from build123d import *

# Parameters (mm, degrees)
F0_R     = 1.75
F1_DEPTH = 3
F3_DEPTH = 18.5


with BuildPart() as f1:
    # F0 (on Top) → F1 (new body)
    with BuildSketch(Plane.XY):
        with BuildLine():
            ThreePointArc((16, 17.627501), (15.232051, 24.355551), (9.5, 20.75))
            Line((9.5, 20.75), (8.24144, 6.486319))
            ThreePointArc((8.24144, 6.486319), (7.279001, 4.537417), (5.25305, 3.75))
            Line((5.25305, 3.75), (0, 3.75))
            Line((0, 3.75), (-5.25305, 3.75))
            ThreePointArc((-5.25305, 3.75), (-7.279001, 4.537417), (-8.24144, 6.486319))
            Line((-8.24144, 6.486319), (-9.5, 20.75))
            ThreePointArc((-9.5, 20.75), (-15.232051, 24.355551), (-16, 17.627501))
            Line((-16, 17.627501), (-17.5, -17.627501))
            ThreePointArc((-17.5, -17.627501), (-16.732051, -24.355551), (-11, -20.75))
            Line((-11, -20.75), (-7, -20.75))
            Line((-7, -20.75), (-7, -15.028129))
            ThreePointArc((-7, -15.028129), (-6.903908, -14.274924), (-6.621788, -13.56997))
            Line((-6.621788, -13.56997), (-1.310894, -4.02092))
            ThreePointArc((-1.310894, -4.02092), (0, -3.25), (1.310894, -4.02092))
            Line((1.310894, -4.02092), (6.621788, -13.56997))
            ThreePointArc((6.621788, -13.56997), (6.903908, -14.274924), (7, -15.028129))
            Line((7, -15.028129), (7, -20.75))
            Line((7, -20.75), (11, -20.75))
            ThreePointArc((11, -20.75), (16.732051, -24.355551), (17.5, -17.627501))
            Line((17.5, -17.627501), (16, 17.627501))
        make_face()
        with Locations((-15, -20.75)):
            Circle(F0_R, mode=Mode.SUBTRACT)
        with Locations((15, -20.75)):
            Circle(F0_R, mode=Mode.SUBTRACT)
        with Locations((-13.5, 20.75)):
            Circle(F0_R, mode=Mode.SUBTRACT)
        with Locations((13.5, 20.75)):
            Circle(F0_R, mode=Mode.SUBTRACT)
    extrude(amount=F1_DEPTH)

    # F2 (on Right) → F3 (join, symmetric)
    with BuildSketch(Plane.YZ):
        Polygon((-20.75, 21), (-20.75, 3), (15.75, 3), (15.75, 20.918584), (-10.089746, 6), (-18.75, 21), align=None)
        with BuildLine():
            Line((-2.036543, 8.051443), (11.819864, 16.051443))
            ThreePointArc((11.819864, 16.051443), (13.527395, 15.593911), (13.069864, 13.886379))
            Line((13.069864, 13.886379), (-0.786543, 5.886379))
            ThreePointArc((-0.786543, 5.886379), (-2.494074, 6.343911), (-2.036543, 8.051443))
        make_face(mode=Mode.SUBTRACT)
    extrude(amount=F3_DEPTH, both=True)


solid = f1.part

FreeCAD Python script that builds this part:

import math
import FreeCAD as App
import Part
import Sketcher
Q = App.Units.Quantity

doc = App.newDocument("Part")
body = doc.addObject("PartDesign::Body", "Body")

# Sketch on XY plane
sketch1 = doc.addObject("Sketcher::SketchObject", "Sketch")
body.addObject(sketch1)
sketch1.AttachmentSupport = (doc.XY_Plane, [""])
sketch1.MapMode = "FlatFace"
sketch1.addGeometry(Part.ArcOfCircle(Part.Circle(App.Vector(13.5, 20.7, 0), App.Vector(0, 0, 1), 4), math.radians(-51), math.radians(180)), False)
sketch1.addGeometry(Part.LineSegment(App.Vector(9.5, 20.8, 0), App.Vector(8.2, 6.5, 0)), False)
sketch1.addGeometry(Part.ArcOfCircle(Part.Circle(App.Vector(5.3, 6.8, 0), App.Vector(0, 0, 1), 3), math.radians(-90), math.radians(-5)), False)
sketch1.addGeometry(Part.LineSegment(App.Vector(5.3, 3.8, 0), App.Vector(-5.3, 3.8, 0)), False)
sketch1.addGeometry(Part.ArcOfCircle(Part.Circle(App.Vector(-5.3, 6.8, 0), App.Vector(0, 0, 1), 3), math.radians(-175), math.radians(-90)), False)
sketch1.addGeometry(Part.LineSegment(App.Vector(-8.2, 6.5, 0), App.Vector(-9.5, 20.8, 0)), False)
sketch1.addGeometry(Part.ArcOfCircle(Part.Circle(App.Vector(-13.5, 20.7, 0), App.Vector(0, 0, 1), 4), math.radians(0), math.radians(231)), False)
sketch1.addGeometry(Part.LineSegment(App.Vector(-16, 17.6, 0), App.Vector(-17.5, -17.6, 0)), False)
sketch1.addGeometry(Part.ArcOfCircle(Part.Circle(App.Vector(-15, -20.7, 0), App.Vector(0, 0, 1), 4), math.radians(129), math.radians(360)), False)
sketch1.addGeometry(Part.LineSegment(App.Vector(-11, -20.8, 0), App.Vector(-7, -20.8, 0)), False)
sketch1.addGeometry(Part.LineSegment(App.Vector(-7, -20.8, 0), App.Vector(-7, -15, 0)), False)
sketch1.addGeometry(Part.ArcOfCircle(Part.Circle(App.Vector(-4, -15, 0), App.Vector(0, 0, 1), 3), math.radians(151), math.radians(180)), False)
sketch1.addGeometry(Part.LineSegment(App.Vector(-6.6, -13.6, 0), App.Vector(-1.3, -4, 0)), False)
sketch1.addGeometry(Part.ArcOfCircle(Part.Circle(App.Vector(0, -4.8, 0), App.Vector(0, 0, 1), 1.5), math.radians(29), math.radians(151)), False)
sketch1.addGeometry(Part.LineSegment(App.Vector(1.3, -4, 0), App.Vector(6.6, -13.6, 0)), False)
sketch1.addGeometry(Part.ArcOfCircle(Part.Circle(App.Vector(4, -15, 0), App.Vector(0, 0, 1), 3), math.radians(0), math.radians(29)), False)
sketch1.addGeometry(Part.LineSegment(App.Vector(7, -15, 0), App.Vector(7, -20.8, 0)), False)
sketch1.addGeometry(Part.LineSegment(App.Vector(7, -20.8, 0), App.Vector(11, -20.8, 0)), False)
sketch1.addGeometry(Part.ArcOfCircle(Part.Circle(App.Vector(15, -20.7, 0), App.Vector(0, 0, 1), 4), math.radians(-180), math.radians(51)), False)
sketch1.addGeometry(Part.LineSegment(App.Vector(17.5, -17.6, 0), App.Vector(16, 17.6, 0)), False)
sketch1.addGeometry(Part.Circle(App.Vector(-15, -20.8, 0), App.Vector(0, 0, 1), 1.8), False)
sketch1.addGeometry(Part.Circle(App.Vector(15, -20.8, 0), App.Vector(0, 0, 1), 1.8), False)
sketch1.addGeometry(Part.Circle(App.Vector(-13.5, 20.8, 0), App.Vector(0, 0, 1), 1.8), False)
sketch1.addGeometry(Part.Circle(App.Vector(13.5, 20.8, 0), App.Vector(0, 0, 1), 1.8), False)
sketch1.addConstraint(Sketcher.Constraint("Coincident", 0, 2, 1, 1))
sketch1.addConstraint(Sketcher.Constraint("Tangent", 1, 2, 2, 2))
sketch1.addConstraint(Sketcher.Constraint("Tangent", 2, 1, 3, 1))
sketch1.addConstraint(Sketcher.Constraint("Tangent", 3, 2, 4, 2))
sketch1.addConstraint(Sketcher.Constraint("Tangent", 4, 1, 5, 1))
sketch1.addConstraint(Sketcher.Constraint("Coincident", 5, 2, 6, 1))
sketch1.addConstraint(Sketcher.Constraint("Coincident", 6, 2, 7, 1))
sketch1.addConstraint(Sketcher.Constraint("Coincident", 7, 2, 8, 1))
sketch1.addConstraint(Sketcher.Constraint("Coincident", 8, 2, 9, 1))
sketch1.addConstraint(Sketcher.Constraint("Coincident", 9, 2, 10, 1))
sketch1.addConstraint(Sketcher.Constraint("Tangent", 10, 2, 11, 2))
sketch1.addConstraint(Sketcher.Constraint("Tangent", 11, 1, 12, 1))
sketch1.addConstraint(Sketcher.Constraint("Tangent", 12, 2, 13, 2))
sketch1.addConstraint(Sketcher.Constraint("Tangent", 13, 1, 14, 1))
sketch1.addConstraint(Sketcher.Constraint("Tangent", 14, 2, 15, 2))
sketch1.addConstraint(Sketcher.Constraint("Tangent", 15, 1, 16, 1))
sketch1.addConstraint(Sketcher.Constraint("Coincident", 16, 2, 17, 1))
sketch1.addConstraint(Sketcher.Constraint("Coincident", 17, 2, 18, 1))
sketch1.addConstraint(Sketcher.Constraint("Coincident", 18, 2, 19, 1))
sketch1.addConstraint(Sketcher.Constraint("Coincident", 19, 2, 0, 1))
sketch1.addConstraint(Sketcher.Constraint("Horizontal", 3))
sketch1.addConstraint(Sketcher.Constraint("Horizontal", 9))
sketch1.addConstraint(Sketcher.Constraint("Vertical", 10))
sketch1.addConstraint(Sketcher.Constraint("Vertical", 16))
sketch1.addConstraint(Sketcher.Constraint("Horizontal", 17))
sketch1.addConstraint(Sketcher.Constraint("Coincident", 20, 3, 8, 3))
sketch1.addConstraint(Sketcher.Constraint("Coincident", 21, 3, 18, 3))
sketch1.addConstraint(Sketcher.Constraint("Coincident", 22, 3, 6, 3))
sketch1.addConstraint(Sketcher.Constraint("Coincident", 23, 3, 0, 3))
sketch1.addConstraint(Sketcher.Constraint("Equal", 2, 4))
sketch1.addConstraint(Sketcher.Constraint("Equal", 0, 6))
sketch1.addConstraint(Sketcher.Constraint("Equal", 6, 8))
sketch1.addConstraint(Sketcher.Constraint("Equal", 11, 15))
sketch1.addConstraint(Sketcher.Constraint("Equal", 8, 18))
sketch1.addConstraint(Sketcher.Constraint("Equal", 20, 21))
sketch1.addConstraint(Sketcher.Constraint("Equal", 21, 22))
sketch1.addConstraint(Sketcher.Constraint("Equal", 22, 23))
sketch1.addConstraint(Sketcher.Constraint("Symmetric", 0, 3, 6, 3, -2))
sketch1.addConstraint(Sketcher.Constraint("Symmetric", 11, 3, 15, 3, -2))
sketch1.addConstraint(Sketcher.Constraint("Symmetric", 8, 3, 18, 3, -2))
sketch1.addConstraint(Sketcher.Constraint("Symmetric", 1, 2, 4, 1, -2))
sketch1.addConstraint(Sketcher.Constraint("PointOnObject", 13, 3, -2))
sketch1.addConstraint(Sketcher.Constraint("Horizontal", 23, 3, 0, 2))
sketch1.addConstraint(Sketcher.Constraint("Horizontal", 21, 3, 8, 2))
sketch1.addConstraint(Sketcher.Constraint("Horizontal", 9, 2, 16, 2))
sketch1.addConstraint(Sketcher.Constraint("Horizontal", 7, 2, 18, 2))
sketch1.addConstraint(Sketcher.Constraint("Horizontal", 6, 2, 19, 2))
sketch1.addConstraint(Sketcher.Constraint("Radius", 0, 4.0))
sketch1.addConstraint(Sketcher.Constraint("Radius", 2, 3.0))
sketch1.addConstraint(Sketcher.Constraint("Diameter", 20, 3.5))
sketch1.addConstraint(Sketcher.Constraint("Radius", 13, 1.5))
sketch1.addConstraint(Sketcher.Constraint("DistanceX", 9, 1, 9, 2, 4.0))
sketch1.addConstraint(Sketcher.Constraint("DistanceX", 8, 3, -1, 1, 15.0))
sketch1.addConstraint(Sketcher.Constraint("DistanceX", 6, 2, -1, 1, 16.0))
sketch1.addConstraint(Sketcher.Constraint("DistanceY", 2, 3, 0, 3, 14.0))
sketch1.addConstraint(Sketcher.Constraint("DistanceX", 6, 3, 0, 3, 27.0))
sketch1.addConstraint(Sketcher.Constraint("DistanceY", 8, 3, 13, 3, 15.999999))
sketch1.addConstraint(Sketcher.Constraint("DistanceX", 7, 2, -1, 1, 17.5))
sketch1.addConstraint(Sketcher.Constraint("DistanceY", 8, 3, 4, 3, 27.5))
sketch1.addConstraint(Sketcher.Constraint("DistanceY", -1, 1, 0, 3, 20.75))
sketch1.addConstraint(Sketcher.Constraint("DistanceX", 3, 2, 3, 1, 10.5061))
sketch1.addConstraint(Sketcher.Constraint("Radius", 11, 3.000003))
sketch1.addConstraint(Sketcher.Constraint("DistanceY", 10, 1, 10, 2, 5.721871))
pad1 = doc.addObject("PartDesign::Pad", "Pad")
body.addObject(pad1)
pad1.Profile = sketch1
pad1.Length = 3

# Sketch on YZ plane
sketch2 = doc.addObject("Sketcher::SketchObject", "Sketch001")
body.addObject(sketch2)
sketch2.AttachmentSupport = (doc.YZ_Plane, [""])
sketch2.MapMode = "FlatFace"
sketch2.addGeometry(Part.LineSegment(App.Vector(-20.8, 21, 0), App.Vector(-20.8, 3, 0)), False)
sketch2.addGeometry(Part.LineSegment(App.Vector(-20.8, 3, 0), App.Vector(15.8, 3, 0)), False)
sketch2.addGeometry(Part.LineSegment(App.Vector(15.8, 3, 0), App.Vector(15.8, 20.9, 0)), False)
sketch2.addGeometry(Part.LineSegment(App.Vector(15.8, 20.9, 0), App.Vector(-10.1, 6, 0)), False)
sketch2.addGeometry(Part.LineSegment(App.Vector(-10.1, 6, 0), App.Vector(-18.8, 21, 0)), False)
sketch2.addGeometry(Part.LineSegment(App.Vector(-18.8, 21, 0), App.Vector(-20.8, 21, 0)), False)
sketch2.addGeometry(Part.ArcOfCircle(Part.Circle(App.Vector(-1.4, 7, 0), App.Vector(0, 0, 1), 1.3), math.radians(120), math.radians(300)), False)
sketch2.addGeometry(Part.LineSegment(App.Vector(-2, 8.1, 0), App.Vector(11.8, 16.1, 0)), False)
sketch2.addGeometry(Part.ArcOfCircle(Part.Circle(App.Vector(12.4, 15, 0), App.Vector(0, 0, 1), 1.3), math.radians(-60), math.radians(120)), False)
sketch2.addGeometry(Part.LineSegment(App.Vector(13.1, 13.9, 0), App.Vector(-0.8, 5.9, 0)), False)
sketch2.addConstraint(Sketcher.Constraint("Coincident", 0, 2, 1, 1))
sketch2.addConstraint(Sketcher.Constraint("Coincident", 1, 2, 2, 1))
sketch2.addConstraint(Sketcher.Constraint("Coincident", 2, 2, 3, 1))
sketch2.addConstraint(Sketcher.Constraint("Coincident", 3, 2, 4, 1))
sketch2.addConstraint(Sketcher.Constraint("Coincident", 4, 2, 5, 1))
sketch2.addConstraint(Sketcher.Constraint("Coincident", 5, 2, 0, 1))
sketch2.addConstraint(Sketcher.Constraint("Tangent", 6, 1, 7, 1))
sketch2.addConstraint(Sketcher.Constraint("Tangent", 7, 2, 8, 2))
sketch2.addConstraint(Sketcher.Constraint("Tangent", 8, 1, 9, 1))
sketch2.addConstraint(Sketcher.Constraint("Tangent", 9, 2, 6, 2))
sketch2.addConstraint(Sketcher.Constraint("Vertical", 0))
sketch2.addConstraint(Sketcher.Constraint("Horizontal", 1))
sketch2.addConstraint(Sketcher.Constraint("Vertical", 2))
sketch2.addConstraint(Sketcher.Constraint("Horizontal", 5))
sketch2.addConstraint(Sketcher.Constraint("Equal", 6, 8))
sketch2.addConstraint(Sketcher.Constraint("Perpendicular", 3, 4))
sketch2.addConstraint(Sketcher.Constraint("Perpendicular", 4, 7))
sketch2.addConstraint(Sketcher.Constraint("DistanceX", 5, 2, 5, 1, 2.0))
sketch2.addConstraint(Sketcher.Constraint("DistanceY", 0, 2, 0, 1, 18.0))
sketch2.addConstraint(Sketcher.Constraint("Angle", 3, Q("-150.000001 deg")))
sketch2.addConstraint(Sketcher.Constraint("Radius", 6, 1.25))
sketch2.addConstraint(Sketcher.Constraint("Distance", 7, 16.0))
sketch2.addConstraint(Sketcher.Constraint("DistanceX", 1, 1, 1, 2, 36.5))
sketch2.addConstraint(Sketcher.Constraint("DistanceY", -1, 1, 0, 2, 3.0))
sketch2.addConstraint(Sketcher.Constraint("DistanceY", -1, 1, 3, 2, 6.0))
sketch2.addConstraint(Sketcher.Constraint("DistanceX", 0, 2, -1, 1, 20.75))
sketch2.addConstraint(Sketcher.Constraint("DistanceY", -1, 1, 6, 3, 6.968911))
sketch2.addConstraint(Sketcher.Constraint("DistanceX", 3, 2, 8, 3, 22.534609))
pad2 = doc.addObject("PartDesign::Pad", "Pad001")
body.addObject(pad2)
pad2.Profile = sketch2
pad2.Length = 37
pad2.Midplane = True

doc.recompute()
